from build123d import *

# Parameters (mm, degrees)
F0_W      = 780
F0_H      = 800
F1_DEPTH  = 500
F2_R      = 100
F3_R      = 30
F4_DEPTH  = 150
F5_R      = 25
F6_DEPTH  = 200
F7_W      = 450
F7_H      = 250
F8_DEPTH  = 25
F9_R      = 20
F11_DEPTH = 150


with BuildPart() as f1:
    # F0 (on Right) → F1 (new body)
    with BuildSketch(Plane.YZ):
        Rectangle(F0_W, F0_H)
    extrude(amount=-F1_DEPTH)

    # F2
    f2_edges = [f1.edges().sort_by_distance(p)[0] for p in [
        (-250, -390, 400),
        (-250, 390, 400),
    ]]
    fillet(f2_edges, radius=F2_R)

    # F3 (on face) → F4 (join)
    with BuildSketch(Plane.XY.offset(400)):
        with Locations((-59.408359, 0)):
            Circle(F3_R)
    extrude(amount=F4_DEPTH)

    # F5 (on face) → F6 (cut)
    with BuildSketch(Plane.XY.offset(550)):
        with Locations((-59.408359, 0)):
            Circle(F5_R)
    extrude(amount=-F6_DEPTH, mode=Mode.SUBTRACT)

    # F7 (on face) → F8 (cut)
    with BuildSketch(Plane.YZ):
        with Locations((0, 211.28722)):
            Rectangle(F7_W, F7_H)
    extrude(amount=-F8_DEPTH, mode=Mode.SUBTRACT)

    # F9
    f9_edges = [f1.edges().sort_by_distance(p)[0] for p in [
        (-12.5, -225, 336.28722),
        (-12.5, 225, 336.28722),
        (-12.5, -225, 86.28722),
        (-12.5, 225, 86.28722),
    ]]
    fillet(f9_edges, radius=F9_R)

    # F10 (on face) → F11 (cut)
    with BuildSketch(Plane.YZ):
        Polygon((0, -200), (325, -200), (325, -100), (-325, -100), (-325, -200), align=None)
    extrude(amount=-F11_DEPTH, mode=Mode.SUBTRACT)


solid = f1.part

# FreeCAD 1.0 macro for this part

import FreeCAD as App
import Part
import Sketcher
Q = App.Units.Quantity


def edges_at(feature, points):
    """Names of the edges that pass closest to the given points."""
    edges = feature.Shape.Edges
    near = lambda p: min(range(len(edges)), key=lambda i: edges[i].distToShape(Part.Vertex(*p))[0])
    return sorted({f"Edge{near(p) + 1}" for p in points})


def add_polygon(sketch, points):
    """Adds a closed chain of lines whose ends are joined by coincident constraints."""
    first, n = sketch.GeometryCount, len(points)
    for a, b in zip(points, points[1:] + points[:1]):
        sketch.addGeometry(Part.LineSegment(App.Vector(*a, 0), App.Vector(*b, 0)), False)
    for i in range(n):
        sketch.addConstraint(Sketcher.Constraint("Coincident", first + i, 2, first + (i + 1) % n, 1))

doc = App.newDocument("Part")
body = doc.addObject("PartDesign::Body", "Body")

# Sketch on YZ plane
sketch1 = doc.addObject("Sketcher::SketchObject", "Sketch")
body.addObject(sketch1)
sketch1.AttachmentSupport = (doc.YZ_Plane, [""])
sketch1.MapMode = "FlatFace"
add_polygon(sketch1, [(-390, 400), (-390, -400), (390, -400), (390, 400)])  # lines 0-3
sketch1.addConstraint([
    Sketcher.Constraint("Vertical", 0),
    Sketcher.Constraint("Horizontal", 1),
    Sketcher.Constraint("Vertical", 2),
    Sketcher.Constraint("Horizontal", 3),
    Sketcher.Constraint("Symmetric", 0, 2, 2, 2, -1, 1),
    Sketcher.Constraint("DistanceX", 1, 1, 1, 2, Q("780 mm")),
    Sketcher.Constraint("DistanceY", 0, 2, 0, 1, Q("800 mm")),
])
pad1 = doc.addObject("PartDesign::Pad", "Pad")
body.addObject(pad1)
pad1.Profile = sketch1
pad1.Length = 500
pad1.Reversed = True
doc.recompute()

fillet = doc.addObject("PartDesign::Fillet", "Fillet")
body.addObject(fillet)
fillet.Base = (pad1, edges_at(pad1, [(-250, -390, 400), (-250, 390, 400)]))
fillet.Radius = 100

# Sketch on XY plane
sketch2 = doc.addObject("Sketcher::SketchObject", "Sketch001")
body.addObject(sketch2)
sketch2.AttachmentSupport = (doc.XY_Plane, [""])
sketch2.MapMode = "FlatFace"
sketch2.AttachmentOffset = App.Placement(App.Vector(0, 0, 400), App.Rotation())
sketch2.addGeometry(Part.Circle(App.Vector(-59, 0, 0), App.Vector(0, 0, 1), 30), False)
sketch2.addConstraint([
    Sketcher.Constraint("PointOnObject", 0, 3, -1),
    Sketcher.Constraint("Diameter", 0, Q("60 mm")),
    Sketcher.Constraint("DistanceX", 0, 3, -1, 1, Q("59.408359 mm")),
])
pad2 = doc.addObject("PartDesign::Pad", "Pad001")
body.addObject(pad2)
pad2.Profile = sketch2
pad2.Length = 150

# Sketch on XY plane
sketch3 = doc.addObject("Sketcher::SketchObject", "Sketch002")
body.addObject(sketch3)
sketch3.AttachmentSupport = (doc.XY_Plane, [""])
sketch3.MapMode = "FlatFace"
sketch3.AttachmentOffset = App.Placement(App.Vector(0, 0, 550), App.Rotation())
sketch3.addGeometry(Part.Circle(App.Vector(-59, 0, 0), App.Vector(0, 0, 1), 25), False)
sketch3.addConstraint([
    Sketcher.Constraint("PointOnObject", 0, 3, -1),
    Sketcher.Constraint("Diameter", 0, Q("50 mm")),
    Sketcher.Constraint("DistanceX", 0, 3, -1, 1, Q("59.408359 mm")),
])
pocket1 = doc.addObject("PartDesign::Pocket", "Pocket")
body.addObject(pocket1)
pocket1.Profile = sketch3
pocket1.Length = 200

# Sketch on YZ plane
sketch4 = doc.addObject("Sketcher::SketchObject", "Sketch003")
body.addObject(sketch4)
sketch4.AttachmentSupport = (doc.YZ_Plane, [""])
sketch4.MapMode = "FlatFace"
add_polygon(sketch4, [(-225, 336), (-225, 86), (225, 86), (225, 336)])  # lines 0-3
sketch4.addConstraint([
    Sketcher.Constraint("Vertical", 0),
    Sketcher.Constraint("Horizontal", 1),
    Sketcher.Constraint("Vertical", 2),
    Sketcher.Constraint("Horizontal", 3),
    Sketcher.Constraint("DistanceX", 1, 1, 1, 2, Q("450 mm")),
    Sketcher.Constraint("DistanceY", 0, 2, 0, 1, Q("250 mm")),
    Sketcher.Constraint("DistanceX", 0, 2, -1, 1, Q("225 mm")),
    Sketcher.Constraint("DistanceY", -1, 1, 0, 2, Q("86.28722 mm")),
])
pocket2 = doc.addObject("PartDesign::Pocket", "Pocket001")
body.addObject(pocket2)
pocket2.Profile = sketch4
pocket2.Length = 25
doc.recompute()

fillet2 = doc.addObject("PartDesign::Fillet", "Fillet001")
body.addObject(fillet2)
fillet2.Base = (pocket2, edges_at(pocket2, [
    (-12.5, -225, 336.287),
    (-12.5, 225, 336.287),
    (-12.5, -225, 86.287),
    (-12.5, 225, 86.287),
]))
fillet2.Radius = 20

# Sketch on YZ plane
sketch5 = doc.addObject("Sketcher::SketchObject", "Sketch004")
body.addObject(sketch5)
sketch5.AttachmentSupport = (doc.YZ_Plane, [""])
sketch5.MapMode = "FlatFace"
add_polygon(sketch5, [(325, -200), (325, -100), (-325, -100), (-325, -200)])  # lines 0-3
sketch5.addConstraint([
    Sketcher.Constraint("Vertical", 0),
    Sketcher.Constraint("Horizontal", 1),
    Sketcher.Constraint("Vertical", 2),
    Sketcher.Constraint("Horizontal", 3),
    Sketcher.Constraint("DistanceX", 1, 2, 1, 1, Q("650 mm")),
    Sketcher.Constraint("DistanceY", 0, 1, 0, 2, Q("100 mm")),
    Sketcher.Constraint("DistanceX", -1, 1, 0, 2, Q("325 mm")),
    Sketcher.Constraint("DistanceY", 0, 2, -1, 1, Q("100 mm")),
])
pocket3 = doc.addObject("PartDesign::Pocket", "Pocket002")
body.addObject(pocket3)
pocket3.Profile = sketch5
pocket3.Length = 150

doc.recompute()
